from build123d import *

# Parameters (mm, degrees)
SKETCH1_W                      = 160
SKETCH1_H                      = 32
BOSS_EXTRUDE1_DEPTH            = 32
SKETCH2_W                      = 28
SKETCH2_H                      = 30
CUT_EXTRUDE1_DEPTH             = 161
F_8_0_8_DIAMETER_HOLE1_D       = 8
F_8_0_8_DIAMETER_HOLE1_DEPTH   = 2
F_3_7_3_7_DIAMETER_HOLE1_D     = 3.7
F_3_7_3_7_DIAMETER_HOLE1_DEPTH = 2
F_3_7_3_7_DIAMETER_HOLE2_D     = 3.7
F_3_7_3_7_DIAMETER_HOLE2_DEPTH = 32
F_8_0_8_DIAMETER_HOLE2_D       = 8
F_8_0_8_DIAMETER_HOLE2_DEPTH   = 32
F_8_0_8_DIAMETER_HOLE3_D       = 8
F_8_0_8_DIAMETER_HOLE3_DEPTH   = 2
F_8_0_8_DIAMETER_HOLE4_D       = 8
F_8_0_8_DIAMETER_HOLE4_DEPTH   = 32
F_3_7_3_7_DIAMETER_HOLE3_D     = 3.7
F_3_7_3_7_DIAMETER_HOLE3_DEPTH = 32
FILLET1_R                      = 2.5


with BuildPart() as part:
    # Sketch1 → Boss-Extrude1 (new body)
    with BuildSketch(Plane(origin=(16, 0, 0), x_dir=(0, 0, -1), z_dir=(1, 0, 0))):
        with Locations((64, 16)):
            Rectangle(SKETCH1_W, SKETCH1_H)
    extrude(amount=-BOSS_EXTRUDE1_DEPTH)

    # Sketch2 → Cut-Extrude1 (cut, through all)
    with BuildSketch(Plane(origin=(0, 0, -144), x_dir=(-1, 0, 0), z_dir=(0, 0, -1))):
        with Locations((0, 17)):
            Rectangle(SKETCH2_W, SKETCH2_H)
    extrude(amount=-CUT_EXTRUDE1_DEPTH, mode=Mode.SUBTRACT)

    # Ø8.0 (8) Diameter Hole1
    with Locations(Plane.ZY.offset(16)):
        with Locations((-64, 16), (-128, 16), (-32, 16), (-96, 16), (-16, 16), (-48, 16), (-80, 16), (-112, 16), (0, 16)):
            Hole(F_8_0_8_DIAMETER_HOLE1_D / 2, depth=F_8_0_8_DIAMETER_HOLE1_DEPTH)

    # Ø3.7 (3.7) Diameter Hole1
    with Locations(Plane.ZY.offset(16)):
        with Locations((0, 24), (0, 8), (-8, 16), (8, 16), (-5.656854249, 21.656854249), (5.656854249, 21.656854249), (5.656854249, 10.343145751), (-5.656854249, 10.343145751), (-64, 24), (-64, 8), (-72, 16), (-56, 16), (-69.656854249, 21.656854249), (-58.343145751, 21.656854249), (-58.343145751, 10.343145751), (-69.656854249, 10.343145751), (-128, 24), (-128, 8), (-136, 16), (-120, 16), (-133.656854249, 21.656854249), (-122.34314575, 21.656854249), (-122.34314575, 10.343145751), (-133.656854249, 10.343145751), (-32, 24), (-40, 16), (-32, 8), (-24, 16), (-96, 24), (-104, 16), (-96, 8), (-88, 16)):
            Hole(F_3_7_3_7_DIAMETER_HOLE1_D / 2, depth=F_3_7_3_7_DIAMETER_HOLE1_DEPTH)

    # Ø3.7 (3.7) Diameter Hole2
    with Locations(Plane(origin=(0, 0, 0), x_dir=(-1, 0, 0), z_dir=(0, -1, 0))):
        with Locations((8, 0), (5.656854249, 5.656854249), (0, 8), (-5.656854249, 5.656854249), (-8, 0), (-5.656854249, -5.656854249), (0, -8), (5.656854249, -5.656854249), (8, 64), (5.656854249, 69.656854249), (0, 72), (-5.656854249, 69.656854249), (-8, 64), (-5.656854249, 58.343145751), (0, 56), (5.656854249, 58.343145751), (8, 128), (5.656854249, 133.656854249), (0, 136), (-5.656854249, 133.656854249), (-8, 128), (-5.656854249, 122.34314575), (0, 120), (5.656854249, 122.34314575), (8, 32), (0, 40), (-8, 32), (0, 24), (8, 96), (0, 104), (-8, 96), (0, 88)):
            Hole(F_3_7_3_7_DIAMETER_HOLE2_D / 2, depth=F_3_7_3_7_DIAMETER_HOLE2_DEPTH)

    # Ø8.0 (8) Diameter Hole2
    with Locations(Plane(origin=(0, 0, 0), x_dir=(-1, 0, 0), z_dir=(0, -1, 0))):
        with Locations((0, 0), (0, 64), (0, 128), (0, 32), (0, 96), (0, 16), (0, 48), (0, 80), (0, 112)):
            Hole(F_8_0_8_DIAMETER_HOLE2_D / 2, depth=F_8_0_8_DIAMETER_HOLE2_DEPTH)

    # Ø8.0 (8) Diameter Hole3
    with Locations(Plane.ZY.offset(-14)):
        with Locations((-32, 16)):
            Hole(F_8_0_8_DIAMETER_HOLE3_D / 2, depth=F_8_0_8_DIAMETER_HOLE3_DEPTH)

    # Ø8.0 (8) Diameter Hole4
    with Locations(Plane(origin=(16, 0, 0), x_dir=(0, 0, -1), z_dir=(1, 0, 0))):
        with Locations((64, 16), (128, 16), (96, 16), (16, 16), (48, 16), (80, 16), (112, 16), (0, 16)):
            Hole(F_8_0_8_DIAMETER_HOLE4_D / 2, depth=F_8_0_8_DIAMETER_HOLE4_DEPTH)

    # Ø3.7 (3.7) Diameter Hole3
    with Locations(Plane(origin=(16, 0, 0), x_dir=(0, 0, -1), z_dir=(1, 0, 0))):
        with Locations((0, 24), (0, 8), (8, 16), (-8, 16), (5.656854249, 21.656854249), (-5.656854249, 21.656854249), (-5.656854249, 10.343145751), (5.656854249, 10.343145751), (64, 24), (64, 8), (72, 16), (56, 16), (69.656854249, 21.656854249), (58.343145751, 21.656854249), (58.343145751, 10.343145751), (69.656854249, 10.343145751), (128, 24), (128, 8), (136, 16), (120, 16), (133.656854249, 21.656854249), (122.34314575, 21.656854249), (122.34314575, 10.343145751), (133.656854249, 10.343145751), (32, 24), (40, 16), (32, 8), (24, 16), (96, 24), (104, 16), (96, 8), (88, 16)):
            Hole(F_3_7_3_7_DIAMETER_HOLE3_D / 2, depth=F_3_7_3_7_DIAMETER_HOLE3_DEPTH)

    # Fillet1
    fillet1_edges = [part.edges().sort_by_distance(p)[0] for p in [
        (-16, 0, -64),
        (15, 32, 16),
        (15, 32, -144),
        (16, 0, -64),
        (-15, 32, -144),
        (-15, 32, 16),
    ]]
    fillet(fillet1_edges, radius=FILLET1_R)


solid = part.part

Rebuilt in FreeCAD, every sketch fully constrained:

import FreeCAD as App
import Part
import Sketcher

V = App.Vector


def edges_at(feature, points):
    """Names of the edges that pass closest to the given points."""
    edges = feature.Shape.Edges
    near = lambda p: min(range(len(edges)), key=lambda i: edges[i].distToShape(Part.Vertex(*p))[0])
    return sorted({f"Edge{near(p) + 1}" for p in points})

doc = App.newDocument("Part")
body = doc.addObject("PartDesign::Body", "Body")

# Sketch on YZ plane
sketch1 = body.newObject("Sketcher::SketchObject", "Sketch")
sketch1.AttachmentSupport = (doc.getObject("YZ_Plane"), [""])
sketch1.MapMode = "FlatFace"
sketch1.AttachmentOffset = App.Placement(V(0, 0, 16), App.Rotation())
sketch1.addGeometry(Part.LineSegment(V(32, 16, 0), V(0, 16, 0)), False)
sketch1.addGeometry(Part.LineSegment(V(0, 16, 0), V(0, -144, 0)), False)
sketch1.addGeometry(Part.LineSegment(V(0, -144, 0), V(32, -144, 0)), False)
sketch1.addGeometry(Part.LineSegment(V(32, -144, 0), V(32, 16, 0)), False)
sketch1.addConstraint(Sketcher.Constraint("Coincident", 0, 2, 1, 1))
sketch1.addConstraint(Sketcher.Constraint("Coincident", 1, 2, 2, 1))
sketch1.addConstraint(Sketcher.Constraint("Coincident", 2, 2, 3, 1))
sketch1.addConstraint(Sketcher.Constraint("Coincident", 3, 2, 0, 1))
sketch1.addConstraint(Sketcher.Constraint("Horizontal", 0))
sketch1.addConstraint(Sketcher.Constraint("Vertical", 1))
sketch1.addConstraint(Sketcher.Constraint("Horizontal", 2))
sketch1.addConstraint(Sketcher.Constraint("Vertical", 3))
sketch1.addConstraint(Sketcher.Constraint("PointOnObject", 0, 2, -2))
sketch1.addConstraint(Sketcher.Constraint("DistanceX", 0, 2, 0, 1, 32.0))
sketch1.addConstraint(Sketcher.Constraint("DistanceY", 1, 2, 1, 1, 160.0))
sketch1.addConstraint(Sketcher.Constraint("DistanceY", -1, 1, 0, 2, 16.0))
pad1 = body.newObject("PartDesign::Pad", "Pad")
pad1.Profile = sketch1
pad1.Length = 32
pad1.Reversed = True

# Sketch on XY plane
sketch2 = body.newObject("Sketcher::SketchObject", "Sketch001")
sketch2.AttachmentSupport = (doc.getObject("XY_Plane"), [""])
sketch2.MapMode = "FlatFace"
sketch2.AttachmentOffset = App.Placement(V(0, 0, -144), App.Rotation())
sketch2.addGeometry(Part.LineSegment(V(14, 32, 0), V(14, 2, 0)), False)
sketch2.addGeometry(Part.LineSegment(V(14, 2, 0), V(-14, 2, 0)), False)
sketch2.addGeometry(Part.LineSegment(V(-14, 2, 0), V(-14, 32, 0)), False)
sketch2.addGeometry(Part.LineSegment(V(-14, 32, 0), V(14, 32, 0)), False)
sketch2.addConstraint(Sketcher.Constraint("Coincident", 0, 2, 1, 1))
sketch2.addConstraint(Sketcher.Constraint("Coincident", 1, 2, 2, 1))
sketch2.addConstraint(Sketcher.Constraint("Coincident", 2, 2, 3, 1))
sketch2.addConstraint(Sketcher.Constraint("Coincident", 3, 2, 0, 1))
sketch2.addConstraint(Sketcher.Constraint("Vertical", 0))
sketch2.addConstraint(Sketcher.Constraint("Horizontal", 1))
sketch2.addConstraint(Sketcher.Constraint("Vertical", 2))
sketch2.addConstraint(Sketcher.Constraint("Horizontal", 3))
sketch2.addConstraint(Sketcher.Constraint("DistanceX", 1, 2, 1, 1, 28.0))
sketch2.addConstraint(Sketcher.Constraint("DistanceY", 0, 2, 0, 1, 30.0))
sketch2.addConstraint(Sketcher.Constraint("DistanceX", -1, 1, 0, 2, 14.0))
sketch2.addConstraint(Sketcher.Constraint("DistanceY", -1, 1, 0, 2, 2.0))
pocket1 = body.newObject("PartDesign::Pocket", "Pocket")
pocket1.Profile = sketch2
pocket1.Type = "ThroughAll"
pocket1.Reversed = True

# Sketch on YZ plane
sketch3 = body.newObject("Sketcher::SketchObject", "Sketch002")
sketch3.AttachmentSupport = (doc.getObject("YZ_Plane"), [""])
sketch3.MapMode = "FlatFace"
sketch3.AttachmentOffset = App.Placement(V(0, 0, -16), App.Rotation())
sketch3.addGeometry(Part.Circle(V(16, -64, 0), V(0, 0, 1), 4), False)
sketch3.addGeometry(Part.Circle(V(16, -128, 0), V(0, 0, 1), 4), False)
sketch3.addGeometry(Part.Circle(V(16, -32, 0), V(0, 0, 1), 4), False)
sketch3.addGeometry(Part.Circle(V(16, -96, 0), V(0, 0, 1), 4), False)
sketch3.addGeometry(Part.Circle(V(16, -16, 0), V(0, 0, 1), 4), False)
sketch3.addGeometry(Part.Circle(V(16, -48, 0), V(0, 0, 1), 4), False)
sketch3.addGeometry(Part.Circle(V(16, -80, 0), V(0, 0, 1), 4), False)
sketch3.addGeometry(Part.Circle(V(16, -112, 0), V(0, 0, 1), 4), False)
sketch3.addGeometry(Part.Circle(V(16, 0, 0), V(0, 0, 1), 4), False)
sketch3.addConstraint(Sketcher.Constraint("Equal", 0, 1))
sketch3.addConstraint(Sketcher.Constraint("Equal", 1, 2))
sketch3.addConstraint(Sketcher.Constraint("Equal", 2, 3))
sketch3.addConstraint(Sketcher.Constraint("Equal", 3, 4))
sketch3.addConstraint(Sketcher.Constraint("Equal", 4, 5))
sketch3.addConstraint(Sketcher.Constraint("Equal", 5, 6))
sketch3.addConstraint(Sketcher.Constraint("Equal", 6, 7))
sketch3.addConstraint(Sketcher.Constraint("Equal", 7, 8))
sketch3.addConstraint(Sketcher.Constraint("PointOnObject", 8, 3, -1))
sketch3.addConstraint(Sketcher.Constraint("Vertical", 0, 3, 1, 3))
sketch3.addConstraint(Sketcher.Constraint("Vertical", 1, 3, 2, 3))
sketch3.addConstraint(Sketcher.Constraint("Vertical", 2, 3, 3, 3))
sketch3.addConstraint(Sketcher.Constraint("Vertical", 3, 3, 4, 3))
sketch3.addConstraint(Sketcher.Constraint("Vertical", 4, 3, 5, 3))
sketch3.addConstraint(Sketcher.Constraint("Vertical", 5, 3, 6, 3))
sketch3.addConstraint(Sketcher.Constraint("Vertical", 6, 3, 7, 3))
sketch3.addConstraint(Sketcher.Constraint("Vertical", 7, 3, 8, 3))
sketch3.addConstraint(Sketcher.Constraint("Diameter", 0, 8.0))
sketch3.addConstraint(Sketcher.Constraint("DistanceX", -1, 1, 0, 3, 16.0))
sketch3.addConstraint(Sketcher.Constraint("DistanceY", 0, 3, -1, 1, 64.0))
sketch3.addConstraint(Sketcher.Constraint("DistanceY", 1, 3, -1, 1, 128.0))
sketch3.addConstraint(Sketcher.Constraint("DistanceY", 2, 3, -1, 1, 32.0))
sketch3.addConstraint(Sketcher.Constraint("DistanceY", 3, 3, -1, 1, 96.0))
sketch3.addConstraint(Sketcher.Constraint("DistanceY", 4, 3, -1, 1, 16.0))
sketch3.addConstraint(Sketcher.Constraint("DistanceY", 5, 3, -1, 1, 48.0))
sketch3.addConstraint(Sketcher.Constraint("DistanceY", 6, 3, -1, 1, 80.0))
sketch3.addConstraint(Sketcher.Constraint("DistanceY", 7, 3, -1, 1, 112.0))
doc.recompute()
hole = body.newObject("PartDesign::Hole", "Hole")
hole.Profile = sketch3
hole.ThreadType = "None"
hole.Diameter = 8
hole.DepthType = "Dimension"
hole.Depth = 2
hole.DrillPoint = "Flat"
hole.Reversed = True

# Sketch on YZ plane
sketch4 = body.newObject("Sketcher::SketchObject", "Sketch003")
sketch4.AttachmentSupport = (doc.getObject("YZ_Plane"), [""])
sketch4.MapMode = "FlatFace"
sketch4.AttachmentOffset = App.Placement(V(0, 0, -16), App.Rotation())
sketch4.addGeometry(Part.Circle(V(24, 0, 0), V(0, 0, 1), 1.9), False)
sketch4.addGeometry(Part.Circle(V(8, 0, 0), V(0, 0, 1), 1.9), False)
sketch4.addGeometry(Part.Circle(V(16, -8, 0), V(0, 0, 1), 1.9), False)
sketch4.addGeometry(Part.Circle(V(16, 8, 0), V(0, 0, 1), 1.9), False)
sketch4.addGeometry(Part.Circle(V(21.7, -5.7, 0), V(0, 0, 1), 1.9), False)
sketch4.addGeometry(Part.Circle(V(21.7, 5.7, 0), V(0, 0, 1), 1.9), False)
sketch4.addGeometry(Part.Circle(V(10.3, 5.7, 0), V(0, 0, 1), 1.9), False)
sketch4.addGeometry(Part.Circle(V(10.3, -5.7, 0), V(0, 0, 1), 1.9), False)
sketch4.addGeometry(Part.Circle(V(24, -64, 0), V(0, 0, 1), 1.9), False)
sketch4.addGeometry(Part.Circle(V(8, -64, 0), V(0, 0, 1), 1.9), False)
sketch4.addGeometry(Part.Circle(V(16, -72, 0), V(0, 0, 1), 1.9), False)
sketch4.addGeometry(Part.Circle(V(16, -56, 0), V(0, 0, 1), 1.9), False)
sketch4.addGeometry(Part.Circle(V(21.7, -69.7, 0), V(0, 0, 1), 1.9), False)
sketch4.addGeometry(Part.Circle(V(21.7, -58.3, 0), V(0, 0, 1), 1.9), False)
sketch4.addGeometry(Part.Circle(V(10.3, -58.3, 0), V(0, 0, 1), 1.9), False)
sketch4.addGeometry(Part.Circle(V(10.3, -69.7, 0), V(0, 0, 1), 1.9), False)
sketch4.addGeometry(Part.Circle(V(24, -128, 0), V(0, 0, 1), 1.9), False)
sketch4.addGeometry(Part.Circle(V(8, -128, 0), V(0, 0, 1), 1.9), False)
sketch4.addGeometry(Part.Circle(V(16, -136, 0), V(0, 0, 1), 1.9), False)
sketch4.addGeometry(Part.Circle(V(16, -120, 0), V(0, 0, 1), 1.9), False)
sketch4.addGeometry(Part.Circle(V(21.7, -133.7, 0), V(0, 0, 1), 1.9), False)
sketch4.addGeometry(Part.Circle(V(21.7, -122.3, 0), V(0, 0, 1), 1.9), False)
sketch4.addGeometry(Part.Circle(V(10.3, -122.3, 0), V(0, 0, 1), 1.9), False)
sketch4.addGeometry(Part.Circle(V(10.3, -133.7, 0), V(0, 0, 1), 1.9), False)
sketch4.addGeometry(Part.Circle(V(24, -32, 0), V(0, 0, 1), 1.9), False)
sketch4.addGeometry(Part.Circle(V(16, -40, 0), V(0, 0, 1), 1.9), False)
sketch4.addGeometry(Part.Circle(V(8, -32, 0), V(0, 0, 1), 1.9), False)
sketch4.addGeometry(Part.Circle(V(16, -24, 0), V(0, 0, 1), 1.9), False)
sketch4.addGeometry(Part.Circle(V(24, -96, 0), V(0, 0, 1), 1.9), False)
sketch4.addGeometry(Part.Circle(V(16, -104, 0), V(0, 0, 1), 1.9), False)
sketch4.addGeometry(Part.Circle(V(8, -96, 0), V(0, 0, 1), 1.9), False)
sketch4.addGeometry(Part.Circle(V(16, -88, 0), V(0, 0, 1), 1.9), False)
sketch4.addConstraint(Sketcher.Constraint("Equal", 0, 1))
sketch4.addConstraint(Sketcher.Constraint("Equal", 1, 2))
sketch4.addConstraint(Sketcher.Constraint("Equal", 2, 3))
sketch4.addConstraint(Sketcher.Constraint("Equal", 3, 4))
sketch4.addConstraint(Sketcher.Constraint("Equal", 4, 5))
sketch4.addConstraint(Sketcher.Constraint("Equal", 5, 6))
sketch4.addConstraint(Sketcher.Constraint("Equal", 6, 7))
sketch4.addConstraint(Sketcher.Constraint("Equal", 7, 8))
sketch4.addConstraint(Sketcher.Constraint("Equal", 8, 9))
sketch4.addConstraint(Sketcher.Constraint("Equal", 9, 10))
sketch4.addConstraint(Sketcher.Constraint("Equal", 10, 11))
sketch4.addConstraint(Sketcher.Constraint("Equal", 11, 12))
sketch4.addConstraint(Sketcher.Constraint("Equal", 12, 13))
sketch4.addConstraint(Sketcher.Constraint("Equal", 13, 14))
sketch4.addConstraint(Sketcher.Constraint("Equal", 14, 15))
sketch4.addConstraint(Sketcher.Constraint("Equal", 15, 16))
sketch4.addConstraint(Sketcher.Constraint("Equal", 16, 17))
sketch4.addConstraint(Sketcher.Constraint("Equal", 17, 18))
sketch4.addConstraint(Sketcher.Constraint("Equal", 18, 19))
sketch4.addConstraint(Sketcher.Constraint("Equal", 19, 20))
sketch4.addConstraint(Sketcher.Constraint("Equal", 20, 21))
sketch4.addConstraint(Sketcher.Constraint("Equal", 21, 22))
sketch4.addConstraint(Sketcher.Constraint("Equal", 22, 23))
sketch4.addConstraint(Sketcher.Constraint("Equal", 23, 24))
sketch4.addConstraint(Sketcher.Constraint("Equal", 24, 25))
sketch4.addConstraint(Sketcher.Constraint("Equal", 25, 26))
sketch4.addConstraint(Sketcher.Constraint("Equal", 26, 27))
sketch4.addConstraint(Sketcher.Constraint("Equal", 27, 28))
sketch4.addConstraint(Sketcher.Constraint("Equal", 28, 29))
sketch4.addConstraint(Sketcher.Constraint("Equal", 29, 30))
sketch4.addConstraint(Sketcher.Constraint("Equal", 30, 31))
sketch4.addConstraint(Sketcher.Constraint("Symmetric", 2, 3, 3, 3, -1))
sketch4.addConstraint(Sketcher.Constraint("Symmetric", 4, 3, 5, 3, -1))
sketch4.addConstraint(Sketcher.Constraint("Symmetric", 6, 3, 7, 3, -1))
sketch4.addConstraint(Sketcher.Constraint("PointOnObject", 0, 3, -1))
sketch4.addConstraint(Sketcher.Constraint("PointOnObject", 1, 3, -1))
sketch4.addConstraint(Sketcher.Constraint("Horizontal", 5, 3, 6, 3))
sketch4.addConstraint(Sketcher.Constraint("Horizontal", 8, 3, 9, 3))
sketch4.addConstraint(Sketcher.Constraint("Horizontal", 13, 3, 14, 3))
sketch4.addConstraint(Sketcher.Constraint("Horizontal", 12, 3, 15, 3))
sketch4.addConstraint(Sketcher.Constraint("Horizontal", 16, 3, 17, 3))
sketch4.addConstraint(Sketcher.Constraint("Horizontal", 21, 3, 22, 3))
sketch4.addConstraint(Sketcher.Constraint("Horizontal", 20, 3, 23, 3))
sketch4.addConstraint(Sketcher.Constraint("Horizontal", 24, 3, 26, 3))
sketch4.addConstraint(Sketcher.Constraint("Horizontal", 28, 3, 30, 3))
sketch4.addConstraint(Sketcher.Constraint("Vertical", 0, 3, 8, 3))
sketch4.addConstraint(Sketcher.Constraint("Vertical", 1, 3, 9, 3))
sketch4.addConstraint(Sketcher.Constraint("Vertical", 3, 3, 10, 3))
sketch4.addConstraint(Sketcher.Constraint("Vertical", 10, 3, 11, 3))
sketch4.addConstraint(Sketcher.Constraint("Vertical", 5, 3, 12, 3))
sketch4.addConstraint(Sketcher.Constraint("Vertical", 12, 3, 13, 3))
sketch4.addConstraint(Sketcher.Constraint("Vertical", 7, 3, 14, 3))
sketch4.addConstraint(Sketcher.Constraint("Vertical", 14, 3, 15, 3))
sketch4.addConstraint(Sketcher.Constraint("Vertical", 8, 3, 16, 3))
sketch4.addConstraint(Sketcher.Constraint("Vertical", 9, 3, 17, 3))
sketch4.addConstraint(Sketcher.Constraint("Vertical", 11, 3, 18, 3))
sketch4.addConstraint(Sketcher.Constraint("Vertical", 18, 3, 19, 3))
sketch4.addConstraint(Sketcher.Constraint("Vertical", 13, 3, 20, 3))
sketch4.addConstraint(Sketcher.Constraint("Vertical", 20, 3, 21, 3))
sketch4.addConstraint(Sketcher.Constraint("Vertical", 15, 3, 22, 3))
sketch4.addConstraint(Sketcher.Constraint("Vertical", 22, 3, 23, 3))
sketch4.addConstraint(Sketcher.Constraint("Vertical", 16, 3, 24, 3))
sketch4.addConstraint(Sketcher.Constraint("Vertical", 19, 3, 25, 3))
sketch4.addConstraint(Sketcher.Constraint("Vertical", 17, 3, 26, 3))
sketch4.addConstraint(Sketcher.Constraint("Vertical", 25, 3, 27, 3))
sketch4.addConstraint(Sketcher.Constraint("Vertical", 24, 3, 28, 3))
sketch4.addConstraint(Sketcher.Constraint("Vertical", 27, 3, 29, 3))
sketch4.addConstraint(Sketcher.Constraint("Vertical", 26, 3, 30, 3))
sketch4.addConstraint(Sketcher.Constraint("Vertical", 29, 3, 31, 3))
sketch4.addConstraint(Sketcher.Constraint("Diameter", 0, 3.7))
sketch4.addConstraint(Sketcher.Constraint("DistanceX", -1, 1, 0, 3, 24.0))
sketch4.addConstraint(Sketcher.Constraint("DistanceX", -1, 1, 1, 3, 8.0))
sketch4.addConstraint(Sketcher.Constraint("DistanceX", -1, 1, 2, 3, 16.0))
sketch4.addConstraint(Sketcher.Constraint("DistanceY", 2, 3, -1, 1, 8.0))
sketch4.addConstraint(Sketcher.Constraint("DistanceY", 8, 3, -1, 1, 64.0))
sketch4.addConstraint(Sketcher.Constraint("DistanceY", 10, 3, -1, 1, 72.0))
sketch4.addConstraint(Sketcher.Constraint("DistanceY", 11, 3, -1, 1, 56.0))
sketch4.addConstraint(Sketcher.Constraint("DistanceY", 16, 3, -1, 1, 128.0))
sketch4.addConstraint(Sketcher.Constraint("DistanceY", 18, 3, -1, 1, 136.0))
sketch4.addConstraint(Sketcher.Constraint("DistanceY", 19, 3, -1, 1, 120.0))
sketch4.addConstraint(Sketcher.Constraint("DistanceY", 24, 3, -1, 1, 32.0))
sketch4.addConstraint(Sketcher.Constraint("DistanceY", 25, 3, -1, 1, 40.0))
sketch4.addConstraint(Sketcher.Constraint("DistanceY", 27, 3, -1, 1, 24.0))
sketch4.addConstraint(Sketcher.Constraint("DistanceY", 28, 3, -1, 1, 96.0))
sketch4.addConstraint(Sketcher.Constraint("DistanceY", 29, 3, -1, 1, 104.0))
sketch4.addConstraint(Sketcher.Constraint("DistanceY", 31, 3, -1, 1, 88.0))
sketch4.addConstraint(Sketcher.Constraint("DistanceY", 4, 3, 5, 3, 11.313708))
sketch4.addConstraint(Sketcher.Constraint("DistanceX", 6, 3, 5, 3, 11.313708))
sketch4.addConstraint(Sketcher.Constraint("DistanceY", 12, 3, 13, 3, 11.313708))
sketch4.addConstraint(Sketcher.Constraint("DistanceY", 20, 3, 21, 3, 11.313708))
sketch4.addConstraint(Sketcher.Constraint("DistanceX", -1, 1, 4, 3, 21.656854))
sketch4.addConstraint(Sketcher.Constraint("DistanceY", 12, 3, -1, 1, 69.656854))
sketch4.addConstraint(Sketcher.Constraint("DistanceY", 20, 3, -1, 1, 133.656854))
doc.recompute()
hole2 = body.newObject("PartDesign::Hole", "Hole001")
hole2.Profile = sketch4
hole2.ThreadType = "None"
hole2.Diameter = 3.7
hole2.DepthType = "Dimension"
hole2.Depth = 2
hole2.DrillPoint = "Flat"
hole2.Reversed = True

# Sketch on XZ plane
sketch5 = body.newObject("Sketcher::SketchObject", "Sketch004")
sketch5.AttachmentSupport = (doc.getObject("XZ_Plane"), [""])
sketch5.MapMode = "FlatFace"
sketch5.addGeometry(Part.Circle(V(-8, 0, 0), V(0, 0, 1), 1.9), False)
sketch5.addGeometry(Part.Circle(V(-5.7, -5.7, 0), V(0, 0, 1), 1.9), False)
sketch5.addGeometry(Part.Circle(V(0, -8, 0), V(0, 0, 1), 1.9), False)
sketch5.addGeometry(Part.Circle(V(5.7, -5.7, 0), V(0, 0, 1), 1.9), False)
sketch5.addGeometry(Part.Circle(V(8, 0, 0), V(0, 0, 1), 1.9), False)
sketch5.addGeometry(Part.Circle(V(5.7, 5.7, 0), V(0, 0, 1), 1.9), False)
sketch5.addGeometry(Part.Circle(V(0, 8, 0), V(0, 0, 1), 1.9), False)
sketch5.addGeometry(Part.Circle(V(-5.7, 5.7, 0), V(0, 0, 1), 1.9), False)
sketch5.addGeometry(Part.Circle(V(-8, -64, 0), V(0, 0, 1), 1.9), False)
sketch5.addGeometry(Part.Circle(V(-5.7, -69.7, 0), V(0, 0, 1), 1.9), False)
sketch5.addGeometry(Part.Circle(V(0, -72, 0), V(0, 0, 1), 1.9), False)
sketch5.addGeometry(Part.Circle(V(5.7, -69.7, 0), V(0, 0, 1), 1.9), False)
sketch5.addGeometry(Part.Circle(V(8, -64, 0), V(0, 0, 1), 1.9), False)
sketch5.addGeometry(Part.Circle(V(5.7, -58.3, 0), V(0, 0, 1), 1.9), False)
sketch5.addGeometry(Part.Circle(V(0, -56, 0), V(0, 0, 1), 1.9), False)
sketch5.addGeometry(Part.Circle(V(-5.7, -58.3, 0), V(0, 0, 1), 1.9), False)
sketch5.addGeometry(Part.Circle(V(-8, -128, 0), V(0, 0, 1), 1.9), False)
sketch5.addGeometry(Part.Circle(V(-5.7, -133.7, 0), V(0, 0, 1), 1.9), False)
sketch5.addGeometry(Part.Circle(V(0, -136, 0), V(0, 0, 1), 1.9), False)
sketch5.addGeometry(Part.Circle(V(5.7, -133.7, 0), V(0, 0, 1), 1.9), False)
sketch5.addGeometry(Part.Circle(V(8, -128, 0), V(0, 0, 1), 1.9), False)
sketch5.addGeometry(Part.Circle(V(5.7, -122.3, 0), V(0, 0, 1), 1.9), False)
sketch5.addGeometry(Part.Circle(V(0, -120, 0), V(0, 0, 1), 1.9), False)
sketch5.addGeometry(Part.Circle(V(-5.7, -122.3, 0), V(0, 0, 1), 1.9), False)
sketch5.addGeometry(Part.Circle(V(-8, -32, 0), V(0, 0, 1), 1.9), False)
sketch5.addGeometry(Part.Circle(V(0, -40, 0), V(0, 0, 1), 1.9), False)
sketch5.addGeometry(Part.Circle(V(8, -32, 0), V(0, 0, 1), 1.9), False)
sketch5.addGeometry(Part.Circle(V(0, -24, 0), V(0, 0, 1), 1.9), False)
sketch5.addGeometry(Part.Circle(V(-8, -96, 0), V(0, 0, 1), 1.9), False)
sketch5.addGeometry(Part.Circle(V(0, -104, 0), V(0, 0, 1), 1.9), False)
sketch5.addGeometry(Part.Circle(V(8, -96, 0), V(0, 0, 1), 1.9), False)
sketch5.addGeometry(Part.Circle(V(0, -88, 0), V(0, 0, 1), 1.9), False)
sketch5.addConstraint(Sketcher.Constraint("Equal", 0, 1))
sketch5.addConstraint(Sketcher.Constraint("Equal", 1, 2))
sketch5.addConstraint(Sketcher.Constraint("Equal", 2, 3))
sketch5.addConstraint(Sketcher.Constraint("Equal", 3, 4))
sketch5.addConstraint(Sketcher.Constraint("Equal", 4, 5))
sketch5.addConstraint(Sketcher.Constraint("Equal", 5, 6))
sketch5.addConstraint(Sketcher.Constraint("Equal", 6, 7))
sketch5.addConstraint(Sketcher.Constraint("Equal", 7, 8))
sketch5.addConstraint(Sketcher.Constraint("Equal", 8, 9))
sketch5.addConstraint(Sketcher.Constraint("Equal", 9, 10))
sketch5.addConstraint(Sketcher.Constraint("Equal", 10, 11))
sketch5.addConstraint(Sketcher.Constraint("Equal", 11, 12))
sketch5.addConstraint(Sketcher.Constraint("Equal", 12, 13))
sketch5.addConstraint(Sketcher.Constraint("Equal", 13, 14))
sketch5.addConstraint(Sketcher.Constraint("Equal", 14, 15))
sketch5.addConstraint(Sketcher.Constraint("Equal", 15, 16))
sketch5.addConstraint(Sketcher.Constraint("Equal", 16, 17))
sketch5.addConstraint(Sketcher.Constraint("Equal", 17, 18))
sketch5.addConstraint(Sketcher.Constraint("Equal", 18, 19))
sketch5.addConstraint(Sketcher.Constraint("Equal", 19, 20))
sketch5.addConstraint(Sketcher.Constraint("Equal", 20, 21))
sketch5.addConstraint(Sketcher.Constraint("Equal", 21, 22))
sketch5.addConstraint(Sketcher.Constraint("Equal", 22, 23))
sketch5.addConstraint(Sketcher.Constraint("Equal", 23, 24))
sketch5.addConstraint(Sketcher.Constraint("Equal", 24, 25))
sketch5.addConstraint(Sketcher.Constraint("Equal", 25, 26))
sketch5.addConstraint(Sketcher.Constraint("Equal", 26, 27))
sketch5.addConstraint(Sketcher.Constraint("Equal", 27, 28))
sketch5.addConstraint(Sketcher.Constraint("Equal", 28, 29))
sketch5.addConstraint(Sketcher.Constraint("Equal", 29, 30))
sketch5.addConstraint(Sketcher.Constraint("Equal", 30, 31))
sketch5.addConstraint(Sketcher.Constraint("Symmetric", 0, 3, 4, 3, -1, 1))
sketch5.addConstraint(Sketcher.Constraint("Symmetric", 1, 3, 5, 3, -1, 1))
sketch5.addConstraint(Sketcher.Constraint("Symmetric", 2, 3, 6, 3, -1, 1))
sketch5.addConstraint(Sketcher.Constraint("Symmetric", 3, 3, 7, 3, -1, 1))
sketch5.addConstraint(Sketcher.Constraint("Symmetric", 1, 3, 3, 3, -2))
sketch5.addConstraint(Sketcher.Constraint("Symmetric", 9, 3, 11, 3, -2))
sketch5.addConstraint(Sketcher.Constraint("Symmetric", 8, 3, 12, 3, -2))
sketch5.addConstraint(Sketcher.Constraint("Symmetric", 13, 3, 15, 3, -2))
sketch5.addConstraint(Sketcher.Constraint("Symmetric", 17, 3, 19, 3, -2))
sketch5.addConstraint(Sketcher.Constraint("Symmetric", 16, 3, 20, 3, -2))
sketch5.addConstraint(Sketcher.Constraint("Symmetric", 21, 3, 23, 3, -2))
sketch5.addConstraint(Sketcher.Constraint("Symmetric", 24, 3, 26, 3, -2))
sketch5.addConstraint(Sketcher.Constraint("Symmetric", 28, 3, 30, 3, -2))
sketch5.addConstraint(Sketcher.Constraint("PointOnObject", 0, 3, -1))
sketch5.addConstraint(Sketcher.Constraint("PointOnObject", 2, 3, -2))
sketch5.addConstraint(Sketcher.Constraint("PointOnObject", 10, 3, -2))
sketch5.addConstraint(Sketcher.Constraint("PointOnObject", 14, 3, -2))
sketch5.addConstraint(Sketcher.Constraint("PointOnObject", 18, 3, -2))
sketch5.addConstraint(Sketcher.Constraint("PointOnObject", 22, 3, -2))
sketch5.addConstraint(Sketcher.Constraint("PointOnObject", 25, 3, -2))
sketch5.addConstraint(Sketcher.Constraint("PointOnObject", 27, 3, -2))
sketch5.addConstraint(Sketcher.Constraint("PointOnObject", 29, 3, -2))
sketch5.addConstraint(Sketcher.Constraint("PointOnObject", 31, 3, -2))
sketch5.addConstraint(Sketcher.Constraint("Vertical", 0, 3, 8, 3))
sketch5.addConstraint(Sketcher.Constraint("Vertical", 7, 3, 9, 3))
sketch5.addConstraint(Sketcher.Constraint("Vertical", 11, 3, 13, 3))
sketch5.addConstraint(Sketcher.Constraint("Vertical", 8, 3, 16, 3))
sketch5.addConstraint(Sketcher.Constraint("Vertical", 15, 3, 17, 3))
sketch5.addConstraint(Sketcher.Constraint("Vertical", 19, 3, 21, 3))
sketch5.addConstraint(Sketcher.Constraint("Vertical", 16, 3, 24, 3))
sketch5.addConstraint(Sketcher.Constraint("Vertical", 24, 3, 28, 3))
sketch5.addConstraint(Sketcher.Constraint("Diameter", 0, 3.7))
sketch5.addConstraint(Sketcher.Constraint("DistanceX", 0, 3, -1, 1, 8.0))
sketch5.addConstraint(Sketcher.Constraint("DistanceY", 2, 3, -1, 1, 8.0))
sketch5.addConstraint(Sketcher.Constraint("DistanceY", 8, 3, -1, 1, 64.0))
sketch5.addConstraint(Sketcher.Constraint("DistanceY", 10, 3, -1, 1, 72.0))
sketch5.addConstraint(Sketcher.Constraint("DistanceY", 14, 3, -1, 1, 56.0))
sketch5.addConstraint(Sketcher.Constraint("DistanceY", 16, 3, -1, 1, 128.0))
sketch5.addConstraint(Sketcher.Constraint("DistanceY", 18, 3, -1, 1, 136.0))
sketch5.addConstraint(Sketcher.Constraint("DistanceY", 22, 3, -1, 1, 120.0))
sketch5.addConstraint(Sketcher.Constraint("DistanceY", 24, 3, -1, 1, 32.0))
sketch5.addConstraint(Sketcher.Constraint("DistanceY", 25, 3, -1, 1, 40.0))
sketch5.addConstraint(Sketcher.Constraint("DistanceY", 27, 3, -1, 1, 24.0))
sketch5.addConstraint(Sketcher.Constraint("DistanceY", 28, 3, -1, 1, 96.0))
sketch5.addConstraint(Sketcher.Constraint("DistanceY", 29, 3, -1, 1, 104.0))
sketch5.addConstraint(Sketcher.Constraint("DistanceY", 31, 3, -1, 1, 88.0))
sketch5.addConstraint(Sketcher.Constraint("DistanceY", 9, 3, 1, 3, 64.0))
sketch5.addConstraint(Sketcher.Constraint("DistanceY", 17, 3, 9, 3, 64.0))
sketch5.addConstraint(Sketcher.Constraint("DistanceX", 1, 3, 3, 3, 11.313708))
sketch5.addConstraint(Sketcher.Constraint("DistanceY", 3, 3, 5, 3, 11.313708))
sketch5.addConstraint(Sketcher.Constraint("DistanceY", 11, 3, 13, 3, 11.313708))
sketch5.addConstraint(Sketcher.Constraint("DistanceY", 19, 3, 21, 3, 11.313708))
doc.recompute()
hole3 = body.newObject("PartDesign::Hole", "Hole002")
hole3.Profile = sketch5
hole3.ThreadType = "None"
hole3.Diameter = 3.7
hole3.DepthType = "Dimension"
hole3.Depth = 32
hole3.DrillPoint = "Flat"

# Sketch on XZ plane
sketch6 = body.newObject("Sketcher::SketchObject", "Sketch005")
sketch6.AttachmentSupport = (doc.getObject("XZ_Plane"), [""])
sketch6.MapMode = "FlatFace"
sketch6.addGeometry(Part.Circle(V(0, 0, 0), V(0, 0, 1), 4), False)
sketch6.addGeometry(Part.Circle(V(0, -64, 0), V(0, 0, 1), 4), False)
sketch6.addGeometry(Part.Circle(V(0, -128, 0), V(0, 0, 1), 4), False)
sketch6.addGeometry(Part.Circle(V(0, -32, 0), V(0, 0, 1), 4), False)
sketch6.addGeometry(Part.Circle(V(0, -96, 0), V(0, 0, 1), 4), False)
sketch6.addGeometry(Part.Circle(V(0, -16, 0), V(0, 0, 1), 4), False)
sketch6.addGeometry(Part.Circle(V(0, -48, 0), V(0, 0, 1), 4), False)
sketch6.addGeometry(Part.Circle(V(0, -80, 0), V(0, 0, 1), 4), False)
sketch6.addGeometry(Part.Circle(V(0, -112, 0), V(0, 0, 1), 4), False)
sketch6.addConstraint(Sketcher.Constraint("Coincident", 0, 3, -1, 1))
sketch6.addConstraint(Sketcher.Constraint("Equal", 0, 1))
sketch6.addConstraint(Sketcher.Constraint("Equal", 1, 2))
sketch6.addConstraint(Sketcher.Constraint("Equal", 2, 3))
sketch6.addConstraint(Sketcher.Constraint("Equal", 3, 4))
sketch6.addConstraint(Sketcher.Constraint("Equal", 4, 5))
sketch6.addConstraint(Sketcher.Constraint("Equal", 5, 6))
sketch6.addConstraint(Sketcher.Constraint("Equal", 6, 7))
sketch6.addConstraint(Sketcher.Constraint("Equal", 7, 8))
sketch6.addConstraint(Sketcher.Constraint("PointOnObject", 1, 3, -2))
sketch6.addConstraint(Sketcher.Constraint("PointOnObject", 2, 3, -2))
sketch6.addConstraint(Sketcher.Constraint("PointOnObject", 3, 3, -2))
sketch6.addConstraint(Sketcher.Constraint("PointOnObject", 4, 3, -2))
sketch6.addConstraint(Sketcher.Constraint("PointOnObject", 5, 3, -2))
sketch6.addConstraint(Sketcher.Constraint("PointOnObject", 6, 3, -2))
sketch6.addConstraint(Sketcher.Constraint("PointOnObject", 7, 3, -2))
sketch6.addConstraint(Sketcher.Constraint("PointOnObject", 8, 3, -2))
sketch6.addConstraint(Sketcher.Constraint("Diameter", 0, 8.0))
sketch6.addConstraint(Sketcher.Constraint("DistanceY", 1, 3, -1, 1, 64.0))
sketch6.addConstraint(Sketcher.Constraint("DistanceY", 2, 3, -1, 1, 128.0))
sketch6.addConstraint(Sketcher.Constraint("DistanceY", 3, 3, -1, 1, 32.0))
sketch6.addConstraint(Sketcher.Constraint("DistanceY", 4, 3, -1, 1, 96.0))
sketch6.addConstraint(Sketcher.Constraint("DistanceY", 5, 3, -1, 1, 16.0))
sketch6.addConstraint(Sketcher.Constraint("DistanceY", 6, 3, -1, 1, 48.0))
sketch6.addConstraint(Sketcher.Constraint("DistanceY", 7, 3, -1, 1, 80.0))
sketch6.addConstraint(Sketcher.Constraint("DistanceY", 8, 3, -1, 1, 112.0))
doc.recompute()
hole4 = body.newObject("PartDesign::Hole", "Hole003")
hole4.Profile = sketch6
hole4.ThreadType = "None"
hole4.Diameter = 8
hole4.DepthType = "Dimension"
hole4.Depth = 32
hole4.DrillPoint = "Flat"

# Sketch on YZ plane
sketch7 = body.newObject("Sketcher::SketchObject", "Sketch006")
sketch7.AttachmentSupport = (doc.getObject("YZ_Plane"), [""])
sketch7.MapMode = "FlatFace"
sketch7.AttachmentOffset = App.Placement(V(0, 0, 14), App.Rotation())
sketch7.addGeometry(Part.Circle(V(16, -32, 0), V(0, 0, 1), 4), False)
sketch7.addConstraint(Sketcher.Constraint("Diameter", 0, 8.0))
sketch7.addConstraint(Sketcher.Constraint("DistanceX", -1, 1, 0, 3, 16.0))
sketch7.addConstraint(Sketcher.Constraint("DistanceY", 0, 3, -1, 1, 32.0))
doc.recompute()
hole5 = body.newObject("PartDesign::Hole", "Hole004")
hole5.Profile = sketch7
hole5.ThreadType = "None"
hole5.Diameter = 8
hole5.DepthType = "Dimension"
hole5.Depth = 2
hole5.DrillPoint = "Flat"
hole5.Reversed = True

# Sketch on YZ plane
sketch8 = body.newObject("Sketcher::SketchObject", "Sketch007")
sketch8.AttachmentSupport = (doc.getObject("YZ_Plane"), [""])
sketch8.MapMode = "FlatFace"
sketch8.AttachmentOffset = App.Placement(V(0, 0, 16), App.Rotation())
sketch8.addGeometry(Part.Circle(V(16, -64, 0), V(0, 0, 1), 4), False)
sketch8.addGeometry(Part.Circle(V(16, -128, 0), V(0, 0, 1), 4), False)
sketch8.addGeometry(Part.Circle(V(16, -96, 0), V(0, 0, 1), 4), False)
sketch8.addGeometry(Part.Circle(V(16, -16, 0), V(0, 0, 1), 4), False)
sketch8.addGeometry(Part.Circle(V(16, -48, 0), V(0, 0, 1), 4), False)
sketch8.addGeometry(Part.Circle(V(16, -80, 0), V(0, 0, 1), 4), False)
sketch8.addGeometry(Part.Circle(V(16, -112, 0), V(0, 0, 1), 4), False)
sketch8.addGeometry(Part.Circle(V(16, 0, 0), V(0, 0, 1), 4), False)
sketch8.addConstraint(Sketcher.Constraint("Equal", 0, 1))
sketch8.addConstraint(Sketcher.Constraint("Equal", 1, 2))
sketch8.addConstraint(Sketcher.Constraint("Equal", 2, 3))
sketch8.addConstraint(Sketcher.Constraint("Equal", 3, 4))
sketch8.addConstraint(Sketcher.Constraint("Equal", 4, 5))
sketch8.addConstraint(Sketcher.Constraint("Equal", 5, 6))
sketch8.addConstraint(Sketcher.Constraint("Equal", 6, 7))
sketch8.addConstraint(Sketcher.Constraint("PointOnObject", 7, 3, -1))
sketch8.addConstraint(Sketcher.Constraint("Vertical", 0, 3, 1, 3))
sketch8.addConstraint(Sketcher.Constraint("Vertical", 1, 3, 2, 3))
sketch8.addConstraint(Sketcher.Constraint("Vertical", 2, 3, 3, 3))
sketch8.addConstraint(Sketcher.Constraint("Vertical", 3, 3, 4, 3))
sketch8.addConstraint(Sketcher.Constraint("Vertical", 4, 3, 5, 3))
sketch8.addConstraint(Sketcher.Constraint("Vertical", 5, 3, 6, 3))
sketch8.addConstraint(Sketcher.Constraint("Vertical", 6, 3, 7, 3))
sketch8.addConstraint(Sketcher.Constraint("Diameter", 0, 8.0))
sketch8.addConstraint(Sketcher.Constraint("DistanceX", -1, 1, 0, 3, 16.0))
sketch8.addConstraint(Sketcher.Constraint("DistanceY", 0, 3, -1, 1, 64.0))
sketch8.addConstraint(Sketcher.Constraint("DistanceY", 1, 3, -1, 1, 128.0))
sketch8.addConstraint(Sketcher.Constraint("DistanceY", 2, 3, -1, 1, 96.0))
sketch8.addConstraint(Sketcher.Constraint("DistanceY", 3, 3, -1, 1, 16.0))
sketch8.addConstraint(Sketcher.Constraint("DistanceY", 4, 3, -1, 1, 48.0))
sketch8.addConstraint(Sketcher.Constraint("DistanceY", 5, 3, -1, 1, 80.0))
sketch8.addConstraint(Sketcher.Constraint("DistanceY", 6, 3, -1, 1, 112.0))
doc.recompute()
hole6 = body.newObject("PartDesign::Hole", "Hole005")
hole6.Profile = sketch8
hole6.ThreadType = "None"
hole6.Diameter = 8
hole6.DepthType = "Dimension"
hole6.Depth = 32
hole6.DrillPoint = "Flat"

# Sketch on YZ plane
sketch9 = body.newObject("Sketcher::SketchObject", "Sketch008")
sketch9.AttachmentSupport = (doc.getObject("YZ_Plane"), [""])
sketch9.MapMode = "FlatFace"
sketch9.AttachmentOffset = App.Placement(V(0, 0, 16), App.Rotation())
sketch9.addGeometry(Part.Circle(V(24, 0, 0), V(0, 0, 1), 1.9), False)
sketch9.addGeometry(Part.Circle(V(8, 0, 0), V(0, 0, 1), 1.9), False)
sketch9.addGeometry(Part.Circle(V(16, -8, 0), V(0, 0, 1), 1.9), False)
sketch9.addGeometry(Part.Circle(V(16, 8, 0), V(0, 0, 1), 1.9), False)
sketch9.addGeometry(Part.Circle(V(21.7, -5.7, 0), V(0, 0, 1), 1.9), False)
sketch9.addGeometry(Part.Circle(V(21.7, 5.7, 0), V(0, 0, 1), 1.9), False)
sketch9.addGeometry(Part.Circle(V(10.3, 5.7, 0), V(0, 0, 1), 1.9), False)
sketch9.addGeometry(Part.Circle(V(10.3, -5.7, 0), V(0, 0, 1), 1.9), False)
sketch9.addGeometry(Part.Circle(V(24, -64, 0), V(0, 0, 1), 1.9), False)
sketch9.addGeometry(Part.Circle(V(8, -64, 0), V(0, 0, 1), 1.9), False)
sketch9.addGeometry(Part.Circle(V(16, -72, 0), V(0, 0, 1), 1.9), False)
sketch9.addGeometry(Part.Circle(V(16, -56, 0), V(0, 0, 1), 1.9), False)
sketch9.addGeometry(Part.Circle(V(21.7, -69.7, 0), V(0, 0, 1), 1.9), False)
sketch9.addGeometry(Part.Circle(V(21.7, -58.3, 0), V(0, 0, 1), 1.9), False)
sketch9.addGeometry(Part.Circle(V(10.3, -58.3, 0), V(0, 0, 1), 1.9), False)
sketch9.addGeometry(Part.Circle(V(10.3, -69.7, 0), V(0, 0, 1), 1.9), False)
sketch9.addGeometry(Part.Circle(V(24, -128, 0), V(0, 0, 1), 1.9), False)
sketch9.addGeometry(Part.Circle(V(8, -128, 0), V(0, 0, 1), 1.9), False)
sketch9.addGeometry(Part.Circle(V(16, -136, 0), V(0, 0, 1), 1.9), False)
sketch9.addGeometry(Part.Circle(V(16, -120, 0), V(0, 0, 1), 1.9), False)
sketch9.addGeometry(Part.Circle(V(21.7, -133.7, 0), V(0, 0, 1), 1.9), False)
sketch9.addGeometry(Part.Circle(V(21.7, -122.3, 0), V(0, 0, 1), 1.9), False)
sketch9.addGeometry(Part.Circle(V(10.3, -122.3, 0), V(0, 0, 1), 1.9), False)
sketch9.addGeometry(Part.Circle(V(10.3, -133.7, 0), V(0, 0, 1), 1.9), False)
sketch9.addGeometry(Part.Circle(V(24, -32, 0), V(0, 0, 1), 1.9), False)
sketch9.addGeometry(Part.Circle(V(16, -40, 0), V(0, 0, 1), 1.9), False)
sketch9.addGeometry(Part.Circle(V(8, -32, 0), V(0, 0, 1), 1.9), False)
sketch9.addGeometry(Part.Circle(V(16, -24, 0), V(0, 0, 1), 1.9), False)
sketch9.addGeometry(Part.Circle(V(24, -96, 0), V(0, 0, 1), 1.9), False)
sketch9.addGeometry(Part.Circle(V(16, -104, 0), V(0, 0, 1), 1.9), False)
sketch9.addGeometry(Part.Circle(V(8, -96, 0), V(0, 0, 1), 1.9), False)
sketch9.addGeometry(Part.Circle(V(16, -88, 0), V(0, 0, 1), 1.9), False)
sketch9.addConstraint(Sketcher.Constraint("Equal", 0, 1))
sketch9.addConstraint(Sketcher.Constraint("Equal", 1, 2))
sketch9.addConstraint(Sketcher.Constraint("Equal", 2, 3))
sketch9.addConstraint(Sketcher.Constraint("Equal", 3, 4))
sketch9.addConstraint(Sketcher.Constraint("Equal", 4, 5))
sketch9.addConstraint(Sketcher.Constraint("Equal", 5, 6))
sketch9.addConstraint(Sketcher.Constraint("Equal", 6, 7))
sketch9.addConstraint(Sketcher.Constraint("Equal", 7, 8))
sketch9.addConstraint(Sketcher.Constraint("Equal", 8, 9))
sketch9.addConstraint(Sketcher.Constraint("Equal", 9, 10))
sketch9.addConstraint(Sketcher.Constraint("Equal", 10, 11))
sketch9.addConstraint(Sketcher.Constraint("Equal", 11, 12))
sketch9.addConstraint(Sketcher.Constraint("Equal", 12, 13))
sketch9.addConstraint(Sketcher.Constraint("Equal", 13, 14))
sketch9.addConstraint(Sketcher.Constraint("Equal", 14, 15))
sketch9.addConstraint(Sketcher.Constraint("Equal", 15, 16))
sketch9.addConstraint(Sketcher.Constraint("Equal", 16, 17))
sketch9.addConstraint(Sketcher.Constraint("Equal", 17, 18))
sketch9.addConstraint(Sketcher.Constraint("Equal", 18, 19))
sketch9.addConstraint(Sketcher.Constraint("Equal", 19, 20))
sketch9.addConstraint(Sketcher.Constraint("Equal", 20, 21))
sketch9.addConstraint(Sketcher.Constraint("Equal", 21, 22))
sketch9.addConstraint(Sketcher.Constraint("Equal", 22, 23))
sketch9.addConstraint(Sketcher.Constraint("Equal", 23, 24))
sketch9.addConstraint(Sketcher.Constraint("Equal", 24, 25))
sketch9.addConstraint(Sketcher.Constraint("Equal", 25, 26))
sketch9.addConstraint(Sketcher.Constraint("Equal", 26, 27))
sketch9.addConstraint(Sketcher.Constraint("Equal", 27, 28))
sketch9.addConstraint(Sketcher.Constraint("Equal", 28, 29))
sketch9.addConstraint(Sketcher.Constraint("Equal", 29, 30))
sketch9.addConstraint(Sketcher.Constraint("Equal", 30, 31))
sketch9.addConstraint(Sketcher.Constraint("Symmetric", 2, 3, 3, 3, -1))
sketch9.addConstraint(Sketcher.Constraint("Symmetric", 4, 3, 5, 3, -1))
sketch9.addConstraint(Sketcher.Constraint("Symmetric", 6, 3, 7, 3, -1))
sketch9.addConstraint(Sketcher.Constraint("PointOnObject", 0, 3, -1))
sketch9.addConstraint(Sketcher.Constraint("PointOnObject", 1, 3, -1))
sketch9.addConstraint(Sketcher.Constraint("Horizontal", 5, 3, 6, 3))
sketch9.addConstraint(Sketcher.Constraint("Horizontal", 8, 3, 9, 3))
sketch9.addConstraint(Sketcher.Constraint("Horizontal", 13, 3, 14, 3))
sketch9.addConstraint(Sketcher.Constraint("Horizontal", 12, 3, 15, 3))
sketch9.addConstraint(Sketcher.Constraint("Horizontal", 16, 3, 17, 3))
sketch9.addConstraint(Sketcher.Constraint("Horizontal", 21, 3, 22, 3))
sketch9.addConstraint(Sketcher.Constraint("Horizontal", 20, 3, 23, 3))
sketch9.addConstraint(Sketcher.Constraint("Horizontal", 24, 3, 26, 3))
sketch9.addConstraint(Sketcher.Constraint("Horizontal", 28, 3, 30, 3))
sketch9.addConstraint(Sketcher.Constraint("Vertical", 0, 3, 8, 3))
sketch9.addConstraint(Sketcher.Constraint("Vertical", 1, 3, 9, 3))
sketch9.addConstraint(Sketcher.Constraint("Vertical", 3, 3, 10, 3))
sketch9.addConstraint(Sketcher.Constraint("Vertical", 10, 3, 11, 3))
sketch9.addConstraint(Sketcher.Constraint("Vertical", 5, 3, 12, 3))
sketch9.addConstraint(Sketcher.Constraint("Vertical", 12, 3, 13, 3))
sketch9.addConstraint(Sketcher.Constraint("Vertical", 7, 3, 14, 3))
sketch9.addConstraint(Sketcher.Constraint("Vertical", 14, 3, 15, 3))
sketch9.addConstraint(Sketcher.Constraint("Vertical", 8, 3, 16, 3))
sketch9.addConstraint(Sketcher.Constraint("Vertical", 9, 3, 17, 3))
sketch9.addConstraint(Sketcher.Constraint("Vertical", 11, 3, 18, 3))
sketch9.addConstraint(Sketcher.Constraint("Vertical", 18, 3, 19, 3))
sketch9.addConstraint(Sketcher.Constraint("Vertical", 13, 3, 20, 3))
sketch9.addConstraint(Sketcher.Constraint("Vertical", 20, 3, 21, 3))
sketch9.addConstraint(Sketcher.Constraint("Vertical", 15, 3, 22, 3))
sketch9.addConstraint(Sketcher.Constraint("Vertical", 22, 3, 23, 3))
sketch9.addConstraint(Sketcher.Constraint("Vertical", 16, 3, 24, 3))
sketch9.addConstraint(Sketcher.Constraint("Vertical", 19, 3, 25, 3))
sketch9.addConstraint(Sketcher.Constraint("Vertical", 17, 3, 26, 3))
sketch9.addConstraint(Sketcher.Constraint("Vertical", 25, 3, 27, 3))
sketch9.addConstraint(Sketcher.Constraint("Vertical", 24, 3, 28, 3))
sketch9.addConstraint(Sketcher.Constraint("Vertical", 27, 3, 29, 3))
sketch9.addConstraint(Sketcher.Constraint("Vertical", 26, 3, 30, 3))
sketch9.addConstraint(Sketcher.Constraint("Vertical", 29, 3, 31, 3))
sketch9.addConstraint(Sketcher.Constraint("Diameter", 0, 3.7))
sketch9.addConstraint(Sketcher.Constraint("DistanceX", -1, 1, 0, 3, 24.0))
sketch9.addConstraint(Sketcher.Constraint("DistanceX", -1, 1, 1, 3, 8.0))
sketch9.addConstraint(Sketcher.Constraint("DistanceX", -1, 1, 2, 3, 16.0))
sketch9.addConstraint(Sketcher.Constraint("DistanceY", 2, 3, -1, 1, 8.0))
sketch9.addConstraint(Sketcher.Constraint("DistanceY", 8, 3, -1, 1, 64.0))
sketch9.addConstraint(Sketcher.Constraint("DistanceY", 10, 3, -1, 1, 72.0))
sketch9.addConstraint(Sketcher.Constraint("DistanceY", 11, 3, -1, 1, 56.0))
sketch9.addConstraint(Sketcher.Constraint("DistanceY", 16, 3, -1, 1, 128.0))
sketch9.addConstraint(Sketcher.Constraint("DistanceY", 18, 3, -1, 1, 136.0))
sketch9.addConstraint(Sketcher.Constraint("DistanceY", 19, 3, -1, 1, 120.0))
sketch9.addConstraint(Sketcher.Constraint("DistanceY", 24, 3, -1, 1, 32.0))
sketch9.addConstraint(Sketcher.Constraint("DistanceY", 25, 3, -1, 1, 40.0))
sketch9.addConstraint(Sketcher.Constraint("DistanceY", 27, 3, -1, 1, 24.0))
sketch9.addConstraint(Sketcher.Constraint("DistanceY", 28, 3, -1, 1, 96.0))
sketch9.addConstraint(Sketcher.Constraint("DistanceY", 29, 3, -1, 1, 104.0))
sketch9.addConstraint(Sketcher.Constraint("DistanceY", 31, 3, -1, 1, 88.0))
sketch9.addConstraint(Sketcher.Constraint("DistanceY", 4, 3, 5, 3, 11.313708))
sketch9.addConstraint(Sketcher.Constraint("DistanceX", 6, 3, 5, 3, 11.313708))
sketch9.addConstraint(Sketcher.Constraint("DistanceY", 12, 3, 13, 3, 11.313708))
sketch9.addConstraint(Sketcher.Constraint("DistanceY", 20, 3, 21, 3, 11.313708))
sketch9.addConstraint(Sketcher.Constraint("DistanceX", -1, 1, 4, 3, 21.656854))
sketch9.addConstraint(Sketcher.Constraint("DistanceY", 12, 3, -1, 1, 69.656854))
sketch9.addConstraint(Sketcher.Constraint("DistanceY", 20, 3, -1, 1, 133.656854))
doc.recompute()
hole7 = body.newObject("PartDesign::Hole", "Hole006")
hole7.Profile = sketch9
hole7.ThreadType = "None"
hole7.Diameter = 3.7
hole7.DepthType = "Dimension"
hole7.Depth = 32
hole7.DrillPoint = "Flat"
doc.recompute()

fillet = body.newObject("PartDesign::Fillet", "Fillet")
fillet.Base = (hole7, edges_at(hole7, [
    (-16, 0, -64),
    (15, 32, 16),
    (15, 32, -144),
    (16, 0, -64),
    (-15, 32, -144),
    (-15, 32, 16),
]))
fillet.Radius = 2.5

doc.recompute()
